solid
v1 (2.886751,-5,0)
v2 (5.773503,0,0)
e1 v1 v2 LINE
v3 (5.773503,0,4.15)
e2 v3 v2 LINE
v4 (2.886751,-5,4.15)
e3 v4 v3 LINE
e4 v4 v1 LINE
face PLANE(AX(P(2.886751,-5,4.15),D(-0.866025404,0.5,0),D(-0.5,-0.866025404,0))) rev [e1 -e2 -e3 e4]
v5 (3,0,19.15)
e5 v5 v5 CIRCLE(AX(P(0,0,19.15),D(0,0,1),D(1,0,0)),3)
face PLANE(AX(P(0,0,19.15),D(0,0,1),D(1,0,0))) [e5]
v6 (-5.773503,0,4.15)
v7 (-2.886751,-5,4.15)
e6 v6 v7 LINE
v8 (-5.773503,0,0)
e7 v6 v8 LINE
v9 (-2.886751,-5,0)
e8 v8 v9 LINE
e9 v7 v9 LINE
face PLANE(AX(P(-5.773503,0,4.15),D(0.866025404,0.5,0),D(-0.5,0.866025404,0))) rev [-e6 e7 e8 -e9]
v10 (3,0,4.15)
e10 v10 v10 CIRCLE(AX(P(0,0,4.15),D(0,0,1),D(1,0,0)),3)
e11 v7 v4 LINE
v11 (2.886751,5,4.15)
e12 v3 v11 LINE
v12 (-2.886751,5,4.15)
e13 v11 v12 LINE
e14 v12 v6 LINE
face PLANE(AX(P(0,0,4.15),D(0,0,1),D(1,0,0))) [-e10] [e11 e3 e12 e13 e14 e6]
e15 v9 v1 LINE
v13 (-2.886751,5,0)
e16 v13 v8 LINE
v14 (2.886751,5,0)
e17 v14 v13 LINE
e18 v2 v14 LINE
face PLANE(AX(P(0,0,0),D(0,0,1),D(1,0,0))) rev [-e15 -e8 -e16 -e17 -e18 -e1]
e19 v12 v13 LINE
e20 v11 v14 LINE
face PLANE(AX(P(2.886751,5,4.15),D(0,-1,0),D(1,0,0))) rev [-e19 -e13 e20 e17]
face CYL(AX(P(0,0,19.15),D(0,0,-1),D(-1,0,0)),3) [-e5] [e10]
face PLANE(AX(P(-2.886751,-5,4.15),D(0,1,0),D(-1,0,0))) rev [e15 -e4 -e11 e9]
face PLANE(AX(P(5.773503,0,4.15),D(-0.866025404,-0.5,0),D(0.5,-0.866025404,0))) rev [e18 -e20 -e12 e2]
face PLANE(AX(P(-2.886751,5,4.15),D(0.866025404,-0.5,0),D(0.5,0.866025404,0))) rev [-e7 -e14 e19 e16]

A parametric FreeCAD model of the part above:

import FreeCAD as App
import Part
import Sketcher

V = App.Vector
Q = App.Units.Quantity


def add_polygon(sketch, points):
    """Adds a closed chain of lines whose ends are joined by coincident constraints."""
    first, n = sketch.GeometryCount, len(points)
    for a, b in zip(points, points[1:] + points[:1]):
        sketch.addGeometry(Part.LineSegment(App.Vector(*a, 0), App.Vector(*b, 0)), False)
    for i in range(n):
        sketch.addConstraint(Sketcher.Constraint("Coincident", first + i, 2, first + (i + 1) % n, 1))

doc = App.newDocument("Part")
body = doc.addObject("PartDesign::Body", "Body")

# Sketch on XY plane
sketch1 = body.newObject("Sketcher::SketchObject", "Sketch")
sketch1.AttachmentSupport = (doc.getObject("XY_Plane"), [""])
sketch1.MapMode = "FlatFace"
add_polygon(sketch1, [(-3, 5), (-6, 0), (-3, -5), (3, -5), (6, 0), (3, 5)])  # lines 0-5
sketch1.addConstraint(Sketcher.Constraint("Horizontal", 2))
sketch1.addConstraint(Sketcher.Constraint("Horizontal", 5))
sketch1.addConstraint(Sketcher.Constraint("Symmetric", 0, 2, 3, 2, -1, 1))
sketch1.addConstraint(Sketcher.Constraint("Symmetric", 1, 2, 4, 2, -1, 1))
sketch1.addConstraint(Sketcher.Constraint("PointOnObject", 0, 2, -1))
sketch1.addConstraint(Sketcher.Constraint("Parallel", 0, 3))
sketch1.addConstraint(Sketcher.Constraint("Vertical", 2, 2, 4, 2))
sketch1.addConstraint(Sketcher.Constraint("Angle", 0, Q("-120 deg")))
sketch1.addConstraint(Sketcher.Constraint("DistanceY", 1, 2, -1, 1, Q("5 mm")))
sketch1.addConstraint(Sketcher.Constraint("DistanceX", 2, 1, 2, 2, Q("5.773503 mm")))
pad1 = body.newObject("PartDesign::Pad", "Pad")
pad1.Profile = sketch1
pad1.Length = 4.15

# Sketch on XY plane
sketch2 = body.newObject("Sketcher::SketchObject", "Sketch001")
sketch2.AttachmentSupport = (doc.getObject("XY_Plane"), [""])
sketch2.MapMode = "FlatFace"
sketch2.AttachmentOffset = App.Placement(V(0, 0, 4.15), App.Rotation())
sketch2.addGeometry(Part.Circle(V(0, 0, 0), V(0, 0, 1), 3), False)
sketch2.addConstraint(Sketcher.Constraint("Coincident", 0, 3, -1, 1))
sketch2.addConstraint(Sketcher.Constraint("Diameter", 0, Q("6 mm")))
pad2 = body.newObject("PartDesign::Pad", "Pad001")
pad2.Profile = sketch2
pad2.Length = 15

doc.recompute()
